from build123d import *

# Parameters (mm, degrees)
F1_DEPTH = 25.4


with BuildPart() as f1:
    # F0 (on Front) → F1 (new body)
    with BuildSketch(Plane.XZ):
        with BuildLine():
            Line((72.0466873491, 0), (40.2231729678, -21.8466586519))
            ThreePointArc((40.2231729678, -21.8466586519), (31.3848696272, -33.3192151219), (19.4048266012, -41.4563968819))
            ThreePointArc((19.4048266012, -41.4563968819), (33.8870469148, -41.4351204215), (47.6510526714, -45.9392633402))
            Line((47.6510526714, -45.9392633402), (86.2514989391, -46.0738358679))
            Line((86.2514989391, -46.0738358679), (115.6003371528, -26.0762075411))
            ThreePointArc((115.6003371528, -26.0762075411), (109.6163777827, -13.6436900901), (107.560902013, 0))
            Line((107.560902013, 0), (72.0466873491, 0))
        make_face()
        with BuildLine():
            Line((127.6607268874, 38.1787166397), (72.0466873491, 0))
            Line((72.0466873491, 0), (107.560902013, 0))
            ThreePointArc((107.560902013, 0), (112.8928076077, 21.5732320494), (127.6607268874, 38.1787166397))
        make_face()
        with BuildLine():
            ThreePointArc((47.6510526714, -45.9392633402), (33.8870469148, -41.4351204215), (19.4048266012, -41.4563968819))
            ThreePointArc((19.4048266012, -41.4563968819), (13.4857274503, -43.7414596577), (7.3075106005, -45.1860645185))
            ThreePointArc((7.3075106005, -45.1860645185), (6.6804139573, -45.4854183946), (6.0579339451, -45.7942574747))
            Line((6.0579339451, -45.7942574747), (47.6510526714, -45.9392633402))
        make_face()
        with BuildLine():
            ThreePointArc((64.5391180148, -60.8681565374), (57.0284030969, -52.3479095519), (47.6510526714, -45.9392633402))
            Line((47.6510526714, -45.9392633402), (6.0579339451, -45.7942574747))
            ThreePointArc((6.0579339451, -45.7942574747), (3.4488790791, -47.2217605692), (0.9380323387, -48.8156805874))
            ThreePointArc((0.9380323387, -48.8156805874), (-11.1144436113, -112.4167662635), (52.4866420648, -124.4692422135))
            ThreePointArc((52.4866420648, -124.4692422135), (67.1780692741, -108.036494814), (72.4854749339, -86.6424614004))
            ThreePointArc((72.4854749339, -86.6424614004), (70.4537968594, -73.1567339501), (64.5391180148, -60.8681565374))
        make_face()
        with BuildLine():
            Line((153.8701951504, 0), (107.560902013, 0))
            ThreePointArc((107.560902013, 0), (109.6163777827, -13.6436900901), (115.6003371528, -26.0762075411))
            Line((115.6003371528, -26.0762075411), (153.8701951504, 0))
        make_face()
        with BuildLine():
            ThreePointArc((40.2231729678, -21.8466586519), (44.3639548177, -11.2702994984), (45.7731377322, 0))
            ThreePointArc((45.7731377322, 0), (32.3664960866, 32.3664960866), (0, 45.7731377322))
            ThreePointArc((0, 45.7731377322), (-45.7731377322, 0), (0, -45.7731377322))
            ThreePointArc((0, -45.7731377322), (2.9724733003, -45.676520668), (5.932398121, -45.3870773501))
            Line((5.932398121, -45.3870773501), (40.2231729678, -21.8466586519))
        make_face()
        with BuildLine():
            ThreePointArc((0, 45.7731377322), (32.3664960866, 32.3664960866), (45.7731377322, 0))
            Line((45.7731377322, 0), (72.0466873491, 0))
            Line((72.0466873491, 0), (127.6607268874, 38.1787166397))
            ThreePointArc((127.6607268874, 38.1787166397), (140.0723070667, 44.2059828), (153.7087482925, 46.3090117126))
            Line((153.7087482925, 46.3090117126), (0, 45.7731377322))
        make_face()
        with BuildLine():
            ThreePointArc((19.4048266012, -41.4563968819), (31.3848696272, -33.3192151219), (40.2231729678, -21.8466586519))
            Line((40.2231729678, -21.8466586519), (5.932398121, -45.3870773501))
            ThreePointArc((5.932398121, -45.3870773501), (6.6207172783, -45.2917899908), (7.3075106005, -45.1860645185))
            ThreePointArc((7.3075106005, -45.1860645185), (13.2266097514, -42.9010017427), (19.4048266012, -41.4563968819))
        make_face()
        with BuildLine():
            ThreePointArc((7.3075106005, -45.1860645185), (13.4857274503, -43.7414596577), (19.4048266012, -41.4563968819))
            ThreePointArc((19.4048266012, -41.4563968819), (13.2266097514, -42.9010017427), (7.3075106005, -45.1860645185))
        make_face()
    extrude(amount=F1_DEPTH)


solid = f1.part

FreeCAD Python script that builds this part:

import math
import FreeCAD as App
import Part
import Sketcher
from FreeCAD import Vector
Q = App.Units.Quantity

doc = App.newDocument("Part")
body = doc.addObject("PartDesign::Body", "Body")

sketch1 = body.newObject("Sketcher::SketchObject", "Sketch")
sketch1.AttachmentSupport = (doc.getObject("XZ_Plane"), [""])
sketch1.MapMode = "FlatFace"
sketch1.addGeometry([
    Part.ArcOfCircle(Part.Circle(Vector(0, 0, 0), Vector(0, 0, 1), 45.773138), math.radians(-82.55327), math.radians(-80.813635)),
    Part.ArcOfCircle(Part.Circle(Vector(26.712337, -86.642461, 0), Vector(0, 0, 1), 45.773137), math.radians(115.083259), math.radians(116.822894)),
    Part.ArcOfCircle(Part.Circle(Vector(26.712337, -86.642461, 0), Vector(0, 0, 1), 45.773138), math.radians(116.822894), math.radians(124.269624)),
    Part.ArcOfCircle(Part.Circle(Vector(26.712337, -86.642461, 0), Vector(0, 0, 1), 45.773138), math.radians(124.269624), math.radians(360)),
    Part.ArcOfCircle(Part.Circle(Vector(26.712337, -86.642461, 0), Vector(0, 0, 1), 45.773138), math.radians(0), math.radians(34.269624)),
    Part.ArcOfCircle(Part.Circle(Vector(26.712337, -86.642461, 0), Vector(0, 0, 1), 45.773138), math.radians(34.269624), math.radians(62.777608)),
    Part.LineSegment(Vector(47.651053, -45.939263, 0), Vector(86.251499, -46.073836, 0)),
    Part.LineSegment(Vector(86.251499, -46.073836, 0), Vector(115.600337, -26.076208, 0)),
    Part.LineSegment(Vector(115.600337, -26.076208, 0), Vector(153.870195, 0, 0)),
    Part.LineSegment(Vector(153.870195, 0, 0), Vector(107.560902, 0, 0)),
    Part.ArcOfCircle(Part.Circle(Vector(153.870195, 0, 0), Vector(0, 0, 1), 46.309293), math.radians(124.469373), math.radians(180)),
    Part.ArcOfCircle(Part.Circle(Vector(153.870195, 0, 0), Vector(0, 0, 1), 46.309293), math.radians(90.199749), math.radians(124.469373)),
    Part.LineSegment(Vector(153.708748, 46.309012, 0), Vector(0, 45.773138, 0)),
    Part.ArcOfCircle(Part.Circle(Vector(0, 0, 0), Vector(0, 0, 1), 45.773138), math.radians(90), math.radians(270)),
    Part.ArcOfCircle(Part.Circle(Vector(0, 0, 0), Vector(0, 0, 1), 45.773138), math.radians(-90), math.radians(-82.55327)),
    Part.LineSegment(Vector(72.046687, 0, 0), Vector(40.223173, -21.846659, 0)),
    Part.ArcOfCircle(Part.Circle(Vector(0, 0, 0), Vector(0, 0, 1), 45.773138), math.radians(-28.507984), math.radians(0)),
    Part.LineSegment(Vector(45.773138, 0, 0), Vector(72.046687, 0, 0)),
], False)
sketch1.addConstraint([
    Sketcher.Constraint("Coincident", 0, 2, 1, 1),
    Sketcher.Constraint("Tangent", 1, 2, 2, 1),
    Sketcher.Constraint("Tangent", 2, 2, 3, 1),
    Sketcher.Constraint("Tangent", 3, 2, 4, 1),
    Sketcher.Constraint("Tangent", 4, 2, 5, 1),
    Sketcher.Constraint("Coincident", 5, 2, 6, 1),
    Sketcher.Constraint("Coincident", 6, 2, 7, 1),
    Sketcher.Constraint("Coincident", 7, 2, 8, 1),
    Sketcher.Constraint("Coincident", 8, 2, 9, 1),
    Sketcher.Constraint("Coincident", 9, 2, 10, 2),
    Sketcher.Constraint("Tangent", 10, 1, 11, 2),
    Sketcher.Constraint("Tangent", 11, 1, 12, 1),
    Sketcher.Constraint("Coincident", 12, 2, 13, 1),
    Sketcher.Constraint("Tangent", 13, 2, 14, 1),
    Sketcher.Constraint("Tangent", 14, 2, 0, 1),
    Sketcher.Constraint("Coincident", 15, 2, 16, 1),
    Sketcher.Constraint("Coincident", 16, 2, 17, 1),
    Sketcher.Constraint("Coincident", 17, 2, 15, 1),
    Sketcher.Constraint("Horizontal", 9),
    Sketcher.Constraint("Horizontal", 17),
    Sketcher.Constraint("Coincident", 0, 3, -1, 1),
    Sketcher.Constraint("Coincident", 13, 3, -1, 1),
    Sketcher.Constraint("Coincident", 16, 3, -1, 1),
    Sketcher.Constraint("Coincident", 3, 3, 1, 3),
    Sketcher.Constraint("Coincident", 5, 3, 1, 3),
    Sketcher.Constraint("Coincident", 8, 2, 10, 3),
    Sketcher.Constraint("Equal", 0, 1),
    Sketcher.Constraint("Equal", 10, 11),
    Sketcher.Constraint("Equal", 14, 16),
    Sketcher.Constraint("PointOnObject", 10, 3, -1),
    Sketcher.Constraint("PointOnObject", 12, 2, -2),
    Sketcher.Constraint("PointOnObject", 13, 2, -2),
    Sketcher.Constraint("PointOnObject", 16, 2, -1),
    Sketcher.Constraint("Parallel", 7, 8),
    Sketcher.Constraint("Horizontal", 5, 3, 3, 2),
    Sketcher.Constraint("Equal", 6, 15),
    Sketcher.Constraint("Radius", 0, 45.773138),
    Sketcher.Constraint("Radius", 10, 46.309293),
    Sketcher.Constraint("DistanceX", 17, 1, 17, 2, 26.27355),
    Sketcher.Constraint("DistanceX", -1, 1, 6, 2, 86.251499),
    Sketcher.Constraint("DistanceX", -1, 1, 14, 2, 5.932398),
    Sketcher.Constraint("DistanceX", 2, 2, 1, 2, 5.119902),
    Sketcher.Constraint("DistanceY", 5, 2, 0, 2, 0.753199),
    Sketcher.Constraint("DistanceY", 2, 3, 5, 2, 40.703198),
    Sketcher.Constraint("DistanceY", 1, 2, 15, 2, 23.947599),
    Sketcher.Constraint("Distance", 6, 38.600681),
    Sketcher.Constraint("DistanceX", -1, 1, 4, 2, 64.539118),
    Sketcher.Constraint("DistanceX", -1, 1, 11, 1, 153.708748),
    Sketcher.Constraint("DistanceY", 4, 2, 6, 2, 14.794321),
    Sketcher.Constraint("DistanceX", 6, 2, 7, 2, 29.348838),
    Sketcher.Constraint("DistanceX", 10, 1, 11, 3, 26.209468),
])
pad1 = body.newObject("PartDesign::Pad", "Pad")
pad1.Profile = sketch1
pad1.Length = Q("1 in")

doc.recompute()
